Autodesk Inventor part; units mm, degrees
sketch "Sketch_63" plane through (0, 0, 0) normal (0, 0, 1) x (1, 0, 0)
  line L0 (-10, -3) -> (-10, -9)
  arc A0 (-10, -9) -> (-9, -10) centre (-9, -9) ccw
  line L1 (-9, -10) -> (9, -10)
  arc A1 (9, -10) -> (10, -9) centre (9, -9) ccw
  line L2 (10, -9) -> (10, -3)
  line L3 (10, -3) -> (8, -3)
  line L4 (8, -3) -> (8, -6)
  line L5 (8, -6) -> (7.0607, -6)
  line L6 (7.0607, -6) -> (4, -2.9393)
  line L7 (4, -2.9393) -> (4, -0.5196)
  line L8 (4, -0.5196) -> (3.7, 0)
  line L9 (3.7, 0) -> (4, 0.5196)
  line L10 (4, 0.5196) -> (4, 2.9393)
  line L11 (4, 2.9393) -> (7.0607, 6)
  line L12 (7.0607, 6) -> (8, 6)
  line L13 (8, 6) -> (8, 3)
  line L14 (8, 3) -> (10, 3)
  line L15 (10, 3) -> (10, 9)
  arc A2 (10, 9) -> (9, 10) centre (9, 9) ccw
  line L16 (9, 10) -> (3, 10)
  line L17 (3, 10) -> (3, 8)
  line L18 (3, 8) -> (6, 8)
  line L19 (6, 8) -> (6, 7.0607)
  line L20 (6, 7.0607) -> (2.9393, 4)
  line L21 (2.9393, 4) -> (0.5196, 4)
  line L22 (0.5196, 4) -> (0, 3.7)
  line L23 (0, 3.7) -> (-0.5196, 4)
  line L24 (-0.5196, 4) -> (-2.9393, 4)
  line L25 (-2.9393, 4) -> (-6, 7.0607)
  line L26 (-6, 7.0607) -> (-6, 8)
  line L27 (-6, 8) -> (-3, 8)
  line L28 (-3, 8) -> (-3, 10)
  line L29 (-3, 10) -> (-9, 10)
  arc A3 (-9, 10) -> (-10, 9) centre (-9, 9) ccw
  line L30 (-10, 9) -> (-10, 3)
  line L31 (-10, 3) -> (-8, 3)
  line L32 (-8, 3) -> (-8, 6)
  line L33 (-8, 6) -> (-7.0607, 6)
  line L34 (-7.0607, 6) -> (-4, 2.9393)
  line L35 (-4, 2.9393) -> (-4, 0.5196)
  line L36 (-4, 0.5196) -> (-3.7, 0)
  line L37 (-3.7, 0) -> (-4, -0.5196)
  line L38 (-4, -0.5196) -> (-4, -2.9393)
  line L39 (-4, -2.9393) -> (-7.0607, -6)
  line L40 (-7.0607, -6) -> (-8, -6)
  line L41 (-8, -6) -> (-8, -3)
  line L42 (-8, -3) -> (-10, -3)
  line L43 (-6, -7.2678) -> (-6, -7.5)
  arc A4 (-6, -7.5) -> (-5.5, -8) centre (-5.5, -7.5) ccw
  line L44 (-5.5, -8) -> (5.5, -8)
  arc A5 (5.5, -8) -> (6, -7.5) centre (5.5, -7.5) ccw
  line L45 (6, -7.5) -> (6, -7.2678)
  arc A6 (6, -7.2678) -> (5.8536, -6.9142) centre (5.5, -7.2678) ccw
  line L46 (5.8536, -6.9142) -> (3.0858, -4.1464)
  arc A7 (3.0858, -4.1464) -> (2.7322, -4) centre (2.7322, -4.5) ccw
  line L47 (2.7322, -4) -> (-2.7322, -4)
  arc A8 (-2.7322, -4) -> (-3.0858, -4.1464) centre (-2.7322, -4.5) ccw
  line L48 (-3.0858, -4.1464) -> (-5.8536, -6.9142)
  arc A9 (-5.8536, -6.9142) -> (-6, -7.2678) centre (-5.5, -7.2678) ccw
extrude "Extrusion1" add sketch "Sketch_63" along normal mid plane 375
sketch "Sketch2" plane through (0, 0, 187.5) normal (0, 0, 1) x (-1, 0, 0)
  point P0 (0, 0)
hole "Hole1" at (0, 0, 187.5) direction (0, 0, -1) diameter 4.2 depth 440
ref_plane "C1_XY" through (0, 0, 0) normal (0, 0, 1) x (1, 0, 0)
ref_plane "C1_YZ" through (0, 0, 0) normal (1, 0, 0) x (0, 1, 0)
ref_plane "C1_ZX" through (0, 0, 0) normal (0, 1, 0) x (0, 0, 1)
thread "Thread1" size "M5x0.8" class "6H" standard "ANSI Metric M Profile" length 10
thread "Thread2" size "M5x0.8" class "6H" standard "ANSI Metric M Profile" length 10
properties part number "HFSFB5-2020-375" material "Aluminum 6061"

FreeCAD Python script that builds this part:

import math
import FreeCAD as App
import Part
import Sketcher
from FreeCAD import Vector
Q = App.Units.Quantity

doc = App.newDocument("Part")
body = doc.addObject("PartDesign::Body", "Body")

# Sketch on XY plane
sketch1 = body.newObject("Sketcher::SketchObject", "Sketch")
sketch1.AttachmentSupport = (doc.getObject("XY_Plane"), [""])
sketch1.MapMode = "FlatFace"
sketch1.addGeometry([
    Part.LineSegment(Vector(-8, -3, 0), Vector(-10, -3, 0)),  # 0
    Part.LineSegment(Vector(-10, -3, 0), Vector(-10, -9, 0)),  # 1
    Part.ArcOfCircle(Part.Circle(Vector(-9, -9, 0), Vector(0, 0, 1), 1), math.radians(180), math.radians(270)),  # 2
    Part.LineSegment(Vector(-9, -10, 0), Vector(9, -10, 0)),  # 3
    Part.ArcOfCircle(Part.Circle(Vector(9, -9, 0), Vector(0, 0, 1), 1), math.radians(-90), math.radians(0)),  # 4
    Part.LineSegment(Vector(10, -9, 0), Vector(10, -3, 0)),  # 5
    Part.LineSegment(Vector(10, -3, 0), Vector(8, -3, 0)),  # 6
    Part.LineSegment(Vector(8, -3, 0), Vector(8, -6, 0)),  # 7
    Part.LineSegment(Vector(8, -6, 0), Vector(7.0607, -6, 0)),  # 8
    Part.LineSegment(Vector(7.0607, -6, 0), Vector(4, -2.9393, 0)),  # 9
    Part.LineSegment(Vector(4, -2.9393, 0), Vector(4, -0.5196, 0)),  # 10
    Part.LineSegment(Vector(4, -0.5196, 0), Vector(3.7, 0, 0)),  # 11
    Part.LineSegment(Vector(3.7, 0, 0), Vector(4, 0.5196, 0)),  # 12
    Part.LineSegment(Vector(4, 0.5196, 0), Vector(4, 2.9393, 0)),  # 13
    Part.LineSegment(Vector(4, 2.9393, 0), Vector(7.0607, 6, 0)),  # 14
    Part.LineSegment(Vector(7.0607, 6, 0), Vector(8, 6, 0)),  # 15
    Part.LineSegment(Vector(8, 6, 0), Vector(8, 3, 0)),  # 16
    Part.LineSegment(Vector(8, 3, 0), Vector(10, 3, 0)),  # 17
    Part.LineSegment(Vector(10, 3, 0), Vector(10, 9, 0)),  # 18
    Part.ArcOfCircle(Part.Circle(Vector(9, 9, 0), Vector(0, 0, 1), 1), math.radians(0), math.radians(90)),  # 19
    Part.LineSegment(Vector(9, 10, 0), Vector(3, 10, 0)),  # 20
    Part.LineSegment(Vector(3, 10, 0), Vector(3, 8, 0)),  # 21
    Part.LineSegment(Vector(3, 8, 0), Vector(6, 8, 0)),  # 22
    Part.LineSegment(Vector(6, 8, 0), Vector(6, 7.0607, 0)),  # 23
    Part.LineSegment(Vector(6, 7.0607, 0), Vector(2.9393, 4, 0)),  # 24
    Part.LineSegment(Vector(2.9393, 4, 0), Vector(0.5196, 4, 0)),  # 25
    Part.LineSegment(Vector(0.5196, 4, 0), Vector(0, 3.7, 0)),  # 26
    Part.LineSegment(Vector(0, 3.7, 0), Vector(-0.5196, 4, 0)),  # 27
    Part.LineSegment(Vector(-0.5196, 4, 0), Vector(-2.9393, 4, 0)),  # 28
    Part.LineSegment(Vector(-2.9393, 4, 0), Vector(-6, 7.0607, 0)),  # 29
    Part.LineSegment(Vector(-6, 7.0607, 0), Vector(-6, 8, 0)),  # 30
    Part.LineSegment(Vector(-6, 8, 0), Vector(-3, 8, 0)),  # 31
    Part.LineSegment(Vector(-3, 8, 0), Vector(-3, 10, 0)),  # 32
    Part.LineSegment(Vector(-3, 10, 0), Vector(-9, 10, 0)),  # 33
    Part.ArcOfCircle(Part.Circle(Vector(-9, 9, 0), Vector(0, 0, 1), 1), math.radians(90), math.radians(180)),  # 34
    Part.LineSegment(Vector(-10, 9, 0), Vector(-10, 3, 0)),  # 35
    Part.LineSegment(Vector(-10, 3, 0), Vector(-8, 3, 0)),  # 36
    Part.LineSegment(Vector(-8, 3, 0), Vector(-8, 6, 0)),  # 37
    Part.LineSegment(Vector(-8, 6, 0), Vector(-7.0607, 6, 0)),  # 38
    Part.LineSegment(Vector(-7.0607, 6, 0), Vector(-4, 2.9393, 0)),  # 39
    Part.LineSegment(Vector(-4, 2.9393, 0), Vector(-4, 0.5196, 0)),  # 40
    Part.LineSegment(Vector(-4, 0.5196, 0), Vector(-3.7, 0, 0)),  # 41
    Part.LineSegment(Vector(-3.7, 0, 0), Vector(-4, -0.5196, 0)),  # 42
    Part.LineSegment(Vector(-4, -0.5196, 0), Vector(-4, -2.9393, 0)),  # 43
    Part.LineSegment(Vector(-4, -2.9393, 0), Vector(-7.0607, -6, 0)),  # 44
    Part.LineSegment(Vector(-7.0607, -6, 0), Vector(-8, -6, 0)),  # 45
    Part.LineSegment(Vector(-8, -6, 0), Vector(-8, -3, 0)),  # 46
    Part.LineSegment(Vector(-6, -7.5, 0), Vector(-6, -7.2678, 0)),  # 47
    Part.ArcOfCircle(Part.Circle(Vector(-5.5, -7.2678, 0), Vector(0, 0, 1), 0.500066), math.radians(135), math.radians(180)),  # 48
    Part.LineSegment(Vector(-5.8536, -6.9142, 0), Vector(-3.0858, -4.1464, 0)),  # 49
    Part.ArcOfCircle(Part.Circle(Vector(-2.7322, -4.5, 0), Vector(0, 0, 1), 0.5), math.radians(90), math.radians(135)),  # 50
    Part.LineSegment(Vector(-2.7322, -4, 0), Vector(2.7322, -4, 0)),  # 51
    Part.ArcOfCircle(Part.Circle(Vector(2.7322, -4.5, 0), Vector(0, 0, 1), 0.500066), math.radians(45), math.radians(90)),  # 52
    Part.LineSegment(Vector(3.0858, -4.1464, 0), Vector(5.8536, -6.9142, 0)),  # 53
    Part.ArcOfCircle(Part.Circle(Vector(5.5, -7.2678, 0), Vector(0, 0, 1), 0.5), math.radians(0), math.radians(45)),  # 54
    Part.LineSegment(Vector(6, -7.2678, 0), Vector(6, -7.5, 0)),  # 55
    Part.ArcOfCircle(Part.Circle(Vector(5.5, -7.5, 0), Vector(0, 0, 1), 0.5), math.radians(-90), math.radians(0)),  # 56
    Part.LineSegment(Vector(5.5, -8, 0), Vector(-5.5, -8, 0)),  # 57
    Part.ArcOfCircle(Part.Circle(Vector(-5.5, -7.5, 0), Vector(0, 0, 1), 0.5), math.radians(180), math.radians(270)),  # 58
], False)
sketch1.addConstraint([
    Sketcher.Constraint("Coincident", 0, 2, 1, 1),
    Sketcher.Constraint("Tangent", 1, 2, 2, 1),
    Sketcher.Constraint("Tangent", 2, 2, 3, 1),
    Sketcher.Constraint("Tangent", 3, 2, 4, 1),
    Sketcher.Constraint("Tangent", 4, 2, 5, 1),
    Sketcher.Constraint("Coincident", 5, 2, 6, 1),
    Sketcher.Constraint("Coincident", 6, 2, 7, 1),
    Sketcher.Constraint("Coincident", 7, 2, 8, 1),
    Sketcher.Constraint("Coincident", 8, 2, 9, 1),
    Sketcher.Constraint("Coincident", 9, 2, 10, 1),
    Sketcher.Constraint("Coincident", 10, 2, 11, 1),
    Sketcher.Constraint("Coincident", 11, 2, 12, 1),
    Sketcher.Constraint("Coincident", 12, 2, 13, 1),
    Sketcher.Constraint("Coincident", 13, 2, 14, 1),
    Sketcher.Constraint("Coincident", 14, 2, 15, 1),
    Sketcher.Constraint("Coincident", 15, 2, 16, 1),
    Sketcher.Constraint("Coincident", 16, 2, 17, 1),
    Sketcher.Constraint("Coincident", 17, 2, 18, 1),
    Sketcher.Constraint("Tangent", 18, 2, 19, 1),
    Sketcher.Constraint("Tangent", 19, 2, 20, 1),
    Sketcher.Constraint("Coincident", 20, 2, 21, 1),
    Sketcher.Constraint("Coincident", 21, 2, 22, 1),
    Sketcher.Constraint("Coincident", 22, 2, 23, 1),
    Sketcher.Constraint("Coincident", 23, 2, 24, 1),
    Sketcher.Constraint("Coincident", 24, 2, 25, 1),
    Sketcher.Constraint("Coincident", 25, 2, 26, 1),
    Sketcher.Constraint("Coincident", 26, 2, 27, 1),
    Sketcher.Constraint("Coincident", 27, 2, 28, 1),
    Sketcher.Constraint("Coincident", 28, 2, 29, 1),
    Sketcher.Constraint("Coincident", 29, 2, 30, 1),
    Sketcher.Constraint("Coincident", 30, 2, 31, 1),
    Sketcher.Constraint("Coincident", 31, 2, 32, 1),
    Sketcher.Constraint("Coincident", 32, 2, 33, 1),
    Sketcher.Constraint("Tangent", 33, 2, 34, 1),
    Sketcher.Constraint("Tangent", 34, 2, 35, 1),
    Sketcher.Constraint("Coincident", 35, 2, 36, 1),
    Sketcher.Constraint("Coincident", 36, 2, 37, 1),
    Sketcher.Constraint("Coincident", 37, 2, 38, 1),
    Sketcher.Constraint("Coincident", 38, 2, 39, 1),
    Sketcher.Constraint("Coincident", 39, 2, 40, 1),
    Sketcher.Constraint("Coincident", 40, 2, 41, 1),
    Sketcher.Constraint("Coincident", 41, 2, 42, 1),
    Sketcher.Constraint("Coincident", 42, 2, 43, 1),
    Sketcher.Constraint("Coincident", 43, 2, 44, 1),
    Sketcher.Constraint("Coincident", 44, 2, 45, 1),
    Sketcher.Constraint("Coincident", 45, 2, 46, 1),
    Sketcher.Constraint("Coincident", 46, 2, 0, 1),
    Sketcher.Constraint("Tangent", 47, 2, 48, 2),
    Sketcher.Constraint("Tangent", 48, 1, 49, 1),
    Sketcher.Constraint("Tangent", 49, 2, 50, 2),
    Sketcher.Constraint("Tangent", 50, 1, 51, 1),
    Sketcher.Constraint("Tangent", 51, 2, 52, 2),
    Sketcher.Constraint("Tangent", 52, 1, 53, 1),
    Sketcher.Constraint("Tangent", 53, 2, 54, 2),
    Sketcher.Constraint("Tangent", 54, 1, 55, 1),
    Sketcher.Constraint("Tangent", 55, 2, 56, 2),
    Sketcher.Constraint("Tangent", 56, 1, 57, 1),
    Sketcher.Constraint("Tangent", 57, 2, 58, 2),
    Sketcher.Constraint("Tangent", 58, 1, 47, 1),
    Sketcher.Constraint("Horizontal", 0),
    Sketcher.Constraint("Vertical", 1),
    Sketcher.Constraint("Horizontal", 3),
    Sketcher.Constraint("Vertical", 5),
    Sketcher.Constraint("Horizontal", 6),
    Sketcher.Constraint("Vertical", 7),
    Sketcher.Constraint("Horizontal", 8),
    Sketcher.Constraint("Vertical", 10),
    Sketcher.Constraint("Vertical", 13),
    Sketcher.Constraint("Horizontal", 15),
    Sketcher.Constraint("Vertical", 16),
    Sketcher.Constraint("Horizontal", 17),
    Sketcher.Constraint("Vertical", 18),
    Sketcher.Constraint("Horizontal", 20),
    Sketcher.Constraint("Vertical", 21),
    Sketcher.Constraint("Horizontal", 22),
    Sketcher.Constraint("Vertical", 23),
    Sketcher.Constraint("Horizontal", 25),
    Sketcher.Constraint("Horizontal", 28),
    Sketcher.Constraint("Vertical", 30),
    Sketcher.Constraint("Horizontal", 31),
    Sketcher.Constraint("Vertical", 32),
    Sketcher.Constraint("Horizontal", 33),
    Sketcher.Constraint("Vertical", 35),
    Sketcher.Constraint("Horizontal", 36),
    Sketcher.Constraint("Vertical", 37),
    Sketcher.Constraint("Horizontal", 38),
    Sketcher.Constraint("Vertical", 40),
    Sketcher.Constraint("Vertical", 43),
    Sketcher.Constraint("Horizontal", 45),
    Sketcher.Constraint("Vertical", 46),
    Sketcher.Constraint("Vertical", 47),
    Sketcher.Constraint("Horizontal", 51),
    Sketcher.Constraint("Vertical", 55),
    Sketcher.Constraint("Horizontal", 57),
    Sketcher.Constraint("Equal", 2, 4),
    Sketcher.Constraint("Equal", 4, 19),
    Sketcher.Constraint("Equal", 19, 34),
    Sketcher.Constraint("Equal", 48, 50),
    Sketcher.Constraint("Equal", 50, 52),
    Sketcher.Constraint("Equal", 52, 54),
    Sketcher.Constraint("Equal", 54, 56),
    Sketcher.Constraint("Equal", 56, 58),
    Sketcher.Constraint("Symmetric", 2, 3, 19, 3, -1, 1),
    Sketcher.Constraint("Symmetric", 4, 3, 34, 3, -1, 1),
    Sketcher.Constraint("Symmetric", 6, 2, 36, 2, -1, 1),
    Sketcher.Constraint("Symmetric", 8, 2, 38, 2, -1, 1),
    Sketcher.Constraint("Symmetric", 9, 2, 39, 2, -1, 1),
    Sketcher.Constraint("Symmetric", 11, 2, 41, 2, -1, 1),
    Sketcher.Constraint("Symmetric", 12, 2, 42, 2, -1, 1),
    Sketcher.Constraint("Symmetric", 14, 2, 44, 2, -1, 1),
    Sketcher.Constraint("Symmetric", 16, 2, 46, 2, -1, 1),
    Sketcher.Constraint("Symmetric", 48, 3, 54, 3, -2),
    Sketcher.Constraint("Symmetric", 0, 2, 5, 2, -2),
    Sketcher.Constraint("Symmetric", 25, 2, 27, 2, -2),
    Sketcher.Constraint("Symmetric", 23, 2, 29, 2, -2),
    Sketcher.Constraint("Symmetric", 21, 2, 31, 2, -2),
    Sketcher.Constraint("Symmetric", 15, 2, 37, 2, -2),
    Sketcher.Constraint("Symmetric", 13, 2, 39, 2, -2),
    Sketcher.Constraint("PointOnObject", 11, 2, -1),
    Sketcher.Constraint("PointOnObject", 26, 2, -2),
    Sketcher.Constraint("Perpendicular", 9, 14),
    Sketcher.Constraint("Parallel", 14, 24),
    Sketcher.Constraint("Perpendicular", 11, 26),
    Sketcher.Constraint("Perpendicular", 12, 27),
    Sketcher.Constraint("Perpendicular", 24, 29),
    Sketcher.Constraint("Perpendicular", 26, 41),
    Sketcher.Constraint("Perpendicular", 39, 44),
    Sketcher.Constraint("Parallel", 44, 49),
    Sketcher.Constraint("Perpendicular", 49, 53),
    Sketcher.Constraint("Horizontal", 49, 2, 52, 1),
    Sketcher.Constraint("Vertical", 30, 2, 47, 2),
    Sketcher.Constraint("Equal", 33, 1),
    Sketcher.Constraint("Equal", 31, 7),
    Sketcher.Constraint("Equal", 28, 10),
    Sketcher.Constraint("Equal", 36, 21),
    Sketcher.Constraint("Equal", 45, 23),
    Sketcher.Constraint("Equal", 14, 24),
    Sketcher.Constraint("Equal", 12, 26),
    Sketcher.Constraint("Radius", 2, 1.0),
    Sketcher.Constraint("Radius", 48, 0.5),
    Sketcher.Constraint("DistanceX", 0, 2, 0, 1, 2.0),
    Sketcher.Constraint("DistanceX", 3, 1, 3, 2, 18.0),
    Sketcher.Constraint("DistanceX", 20, 2, 20, 1, 6.0),
    Sketcher.Constraint("DistanceX", 22, 1, 22, 2, 3.0),
    Sketcher.Constraint("Angle", 11, Q("120.0007 deg")),
    Sketcher.Constraint("DistanceX", -1, 1, 9, 2, 4.0),
    Sketcher.Constraint("DistanceY", 50, 1, -1, 1, 4.0),
    Sketcher.Constraint("DistanceY", 56, 1, -1, 1, 8.0),
    Sketcher.Constraint("Distance", 11, 0.6),
    Sketcher.Constraint("DistanceX", 8, 2, 8, 1, 0.9393),
    Sketcher.Constraint("DistanceX", 51, 1, 51, 2, 5.4644),
])
pad1 = body.newObject("PartDesign::Pad", "Pad")
pad1.Profile = sketch1
pad1.Length = 375
pad1.Midplane = True

# Sketch on XY plane
sketch2 = body.newObject("Sketcher::SketchObject", "Sketch001")
sketch2.AttachmentSupport = (doc.getObject("XY_Plane"), [""])
sketch2.MapMode = "FlatFace"
sketch2.AttachmentOffset = App.Placement(Vector(0, 0, 187.5), App.Rotation())
sketch2.addGeometry(Part.Circle(Vector(0, 0, 0), Vector(0, 0, 1), 2.1), False)
sketch2.addConstraint([
    Sketcher.Constraint("Coincident", 0, 3, -1, 1),
    Sketcher.Constraint("Diameter", 0, 4.2),
])
doc.recompute()
hole = body.newObject("PartDesign::Hole", "Hole")
hole.Profile = sketch2
hole.ThreadType = "None"
hole.Diameter = 4.2
hole.DepthType = "Dimension"
hole.Depth = 440
hole.DrillPoint = "Flat"

doc.recompute()
